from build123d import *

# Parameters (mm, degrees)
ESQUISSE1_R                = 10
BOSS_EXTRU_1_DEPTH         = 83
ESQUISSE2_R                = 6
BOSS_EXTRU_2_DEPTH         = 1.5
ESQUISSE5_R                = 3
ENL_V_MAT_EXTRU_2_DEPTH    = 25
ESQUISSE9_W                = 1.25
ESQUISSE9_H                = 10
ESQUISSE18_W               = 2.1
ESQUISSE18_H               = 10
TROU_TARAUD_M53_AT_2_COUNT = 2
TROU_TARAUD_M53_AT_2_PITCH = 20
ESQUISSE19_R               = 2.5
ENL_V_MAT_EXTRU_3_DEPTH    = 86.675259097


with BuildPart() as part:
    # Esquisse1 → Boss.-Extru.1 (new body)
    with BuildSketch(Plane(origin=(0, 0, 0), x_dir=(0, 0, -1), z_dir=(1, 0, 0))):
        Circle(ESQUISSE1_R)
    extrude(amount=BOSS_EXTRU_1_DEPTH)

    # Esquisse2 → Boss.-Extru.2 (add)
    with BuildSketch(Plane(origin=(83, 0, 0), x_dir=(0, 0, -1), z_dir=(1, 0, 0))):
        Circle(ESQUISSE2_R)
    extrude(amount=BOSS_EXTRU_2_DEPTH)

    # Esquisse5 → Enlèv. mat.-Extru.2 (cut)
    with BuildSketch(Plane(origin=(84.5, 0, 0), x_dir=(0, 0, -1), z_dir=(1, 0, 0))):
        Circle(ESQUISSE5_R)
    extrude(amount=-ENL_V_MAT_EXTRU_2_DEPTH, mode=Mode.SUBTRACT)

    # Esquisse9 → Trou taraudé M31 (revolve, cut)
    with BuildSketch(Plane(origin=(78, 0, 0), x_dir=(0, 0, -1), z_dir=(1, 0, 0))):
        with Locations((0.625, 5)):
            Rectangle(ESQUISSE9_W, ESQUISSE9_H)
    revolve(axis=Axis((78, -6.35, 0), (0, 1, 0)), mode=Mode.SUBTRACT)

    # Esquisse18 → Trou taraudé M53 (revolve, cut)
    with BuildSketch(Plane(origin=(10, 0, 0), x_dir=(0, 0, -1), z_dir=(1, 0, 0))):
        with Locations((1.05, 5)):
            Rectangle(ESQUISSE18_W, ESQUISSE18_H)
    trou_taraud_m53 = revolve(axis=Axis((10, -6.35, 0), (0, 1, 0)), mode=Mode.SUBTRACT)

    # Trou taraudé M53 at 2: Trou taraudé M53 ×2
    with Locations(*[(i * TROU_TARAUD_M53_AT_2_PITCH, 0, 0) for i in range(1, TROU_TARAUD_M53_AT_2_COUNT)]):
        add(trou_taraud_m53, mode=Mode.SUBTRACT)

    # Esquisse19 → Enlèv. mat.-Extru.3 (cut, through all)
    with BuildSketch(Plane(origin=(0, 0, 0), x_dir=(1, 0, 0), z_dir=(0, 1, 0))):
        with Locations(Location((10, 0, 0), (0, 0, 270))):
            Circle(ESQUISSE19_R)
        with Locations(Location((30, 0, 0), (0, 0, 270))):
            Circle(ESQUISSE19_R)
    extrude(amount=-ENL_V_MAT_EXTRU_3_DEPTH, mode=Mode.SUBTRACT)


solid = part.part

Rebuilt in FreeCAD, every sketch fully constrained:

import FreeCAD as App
import Part
import Sketcher
Q = App.Units.Quantity


def add_polygon(sketch, points):
    """Adds a closed chain of lines whose ends are joined by coincident constraints."""
    first, n = sketch.GeometryCount, len(points)
    for a, b in zip(points, points[1:] + points[:1]):
        sketch.addGeometry(Part.LineSegment(App.Vector(*a, 0), App.Vector(*b, 0)), False)
    for i in range(n):
        sketch.addConstraint(Sketcher.Constraint("Coincident", first + i, 2, first + (i + 1) % n, 1))

doc = App.newDocument("Part")
body = doc.addObject("PartDesign::Body", "Body")

sketch1 = doc.addObject("Sketcher::SketchObject", "Sketch")
body.addObject(sketch1)
sketch1.AttachmentSupport = (doc.YZ_Plane, [""])
sketch1.MapMode = "FlatFace"
sketch1.addGeometry(Part.Circle(App.Vector(0, 0, 0), App.Vector(0, 0, 1), 10), False)
sketch1.addConstraint(Sketcher.Constraint("Coincident", 0, 3, -1, 1))
sketch1.addConstraint(Sketcher.Constraint("Diameter", 0, Q("20 mm")))
pad1 = doc.addObject("PartDesign::Pad", "Pad")
body.addObject(pad1)
pad1.Profile = sketch1
pad1.Length = 83

sketch2 = doc.addObject("Sketcher::SketchObject", "Sketch001")
body.addObject(sketch2)
sketch2.AttachmentSupport = (doc.YZ_Plane, [""])
sketch2.MapMode = "FlatFace"
sketch2.AttachmentOffset = App.Placement(App.Vector(0, 0, 83), App.Rotation())
sketch2.addGeometry(Part.Circle(App.Vector(0, 0, 0), App.Vector(0, 0, 1), 6), False)
sketch2.addConstraint(Sketcher.Constraint("Coincident", 0, 3, -1, 1))
sketch2.addConstraint(Sketcher.Constraint("Diameter", 0, Q("12 mm")))
pad2 = doc.addObject("PartDesign::Pad", "Pad001")
body.addObject(pad2)
pad2.Profile = sketch2
pad2.Length = 1.5

sketch3 = doc.addObject("Sketcher::SketchObject", "Sketch002")
body.addObject(sketch3)
sketch3.AttachmentSupport = (doc.YZ_Plane, [""])
sketch3.MapMode = "FlatFace"
sketch3.AttachmentOffset = App.Placement(App.Vector(0, 0, 84.5), App.Rotation())
sketch3.addGeometry(Part.Circle(App.Vector(0, 0, 0), App.Vector(0, 0, 1), 3), False)
sketch3.addConstraint(Sketcher.Constraint("Coincident", 0, 3, -1, 1))
sketch3.addConstraint(Sketcher.Constraint("Diameter", 0, Q("6 mm")))
pocket1 = doc.addObject("PartDesign::Pocket", "Pocket")
body.addObject(pocket1)
pocket1.Profile = sketch3
pocket1.Length = 25

sketch4 = doc.addObject("Sketcher::SketchObject", "Sketch003")
body.addObject(sketch4)
sketch4.AttachmentSupport = (doc.YZ_Plane, [""])
sketch4.MapMode = "FlatFace"
sketch4.AttachmentOffset = App.Placement(App.Vector(0, 0, 78), App.Rotation())
add_polygon(sketch4, [(10, 0), (0, 0), (0, -1.25), (10, -1.25)])
sketch4.addConstraint(Sketcher.Constraint("Horizontal", 0))
sketch4.addConstraint(Sketcher.Constraint("Vertical", 1))
sketch4.addConstraint(Sketcher.Constraint("Horizontal", 2))
sketch4.addConstraint(Sketcher.Constraint("Vertical", 3))
sketch4.addConstraint(Sketcher.Constraint("Coincident", 0, 2, -1, 1))
sketch4.addConstraint(Sketcher.Constraint("DistanceX", 0, 2, 0, 1, Q("10 mm")))
sketch4.addConstraint(Sketcher.Constraint("DistanceY", 1, 2, 1, 1, Q("1.25 mm")))
groove = doc.addObject("PartDesign::Groove", "Groove")
body.addObject(groove)
groove.Profile = sketch4
groove.ReferenceAxis = (sketch4, ["H_Axis"])
groove.Angle = 360

sketch5 = doc.addObject("Sketcher::SketchObject", "Sketch004")
body.addObject(sketch5)
sketch5.AttachmentSupport = (doc.YZ_Plane, [""])
sketch5.MapMode = "FlatFace"
sketch5.AttachmentOffset = App.Placement(App.Vector(0, 0, 10), App.Rotation())
add_polygon(sketch5, [(10, 0), (0, 0), (0, -2.1), (10, -2.1)])
sketch5.addConstraint(Sketcher.Constraint("Horizontal", 0))
sketch5.addConstraint(Sketcher.Constraint("Vertical", 1))
sketch5.addConstraint(Sketcher.Constraint("Horizontal", 2))
sketch5.addConstraint(Sketcher.Constraint("Vertical", 3))
sketch5.addConstraint(Sketcher.Constraint("Coincident", 0, 2, -1, 1))
sketch5.addConstraint(Sketcher.Constraint("DistanceX", 0, 2, 0, 1, Q("10 mm")))
sketch5.addConstraint(Sketcher.Constraint("DistanceY", 1, 2, 1, 1, Q("2.1 mm")))
groove2 = doc.addObject("PartDesign::Groove", "Groove001")
body.addObject(groove2)
groove2.Profile = sketch5
groove2.ReferenceAxis = (sketch5, ["H_Axis"])
groove2.Angle = 360
doc.recompute()

linearpattern = doc.addObject("PartDesign::LinearPattern", "LinearPattern")
body.addObject(linearpattern)
linearpattern.Originals = [groove2]
linearpattern.Direction = (doc.X_Axis, [""])
linearpattern.Mode = "offset"
linearpattern.Offset = 20
linearpattern.Occurrences = 2
body.Tip = linearpattern

sketch6 = doc.addObject("Sketcher::SketchObject", "Sketch005")
body.addObject(sketch6)
sketch6.AttachmentSupport = (doc.XZ_Plane, [""])
sketch6.MapMode = "FlatFace"
sketch6.addGeometry(Part.Circle(App.Vector(10, 0, 0), App.Vector(0, 0, 1), 2.5), False)
sketch6.addGeometry(Part.Circle(App.Vector(30, 0, 0), App.Vector(0, 0, 1), 2.5), False)
sketch6.addConstraint(Sketcher.Constraint("Equal", 0, 1))
sketch6.addConstraint(Sketcher.Constraint("PointOnObject", 0, 3, -1))
sketch6.addConstraint(Sketcher.Constraint("PointOnObject", 1, 3, -1))
sketch6.addConstraint(Sketcher.Constraint("Diameter", 0, Q("5 mm")))
sketch6.addConstraint(Sketcher.Constraint("DistanceX", -1, 1, 0, 3, Q("10 mm")))
sketch6.addConstraint(Sketcher.Constraint("DistanceX", -1, 1, 1, 3, Q("30 mm")))
pocket2 = doc.addObject("PartDesign::Pocket", "Pocket001")
body.addObject(pocket2)
pocket2.Profile = sketch6
pocket2.Type = "ThroughAll"
pocket2.Reversed = True

doc.recompute()
